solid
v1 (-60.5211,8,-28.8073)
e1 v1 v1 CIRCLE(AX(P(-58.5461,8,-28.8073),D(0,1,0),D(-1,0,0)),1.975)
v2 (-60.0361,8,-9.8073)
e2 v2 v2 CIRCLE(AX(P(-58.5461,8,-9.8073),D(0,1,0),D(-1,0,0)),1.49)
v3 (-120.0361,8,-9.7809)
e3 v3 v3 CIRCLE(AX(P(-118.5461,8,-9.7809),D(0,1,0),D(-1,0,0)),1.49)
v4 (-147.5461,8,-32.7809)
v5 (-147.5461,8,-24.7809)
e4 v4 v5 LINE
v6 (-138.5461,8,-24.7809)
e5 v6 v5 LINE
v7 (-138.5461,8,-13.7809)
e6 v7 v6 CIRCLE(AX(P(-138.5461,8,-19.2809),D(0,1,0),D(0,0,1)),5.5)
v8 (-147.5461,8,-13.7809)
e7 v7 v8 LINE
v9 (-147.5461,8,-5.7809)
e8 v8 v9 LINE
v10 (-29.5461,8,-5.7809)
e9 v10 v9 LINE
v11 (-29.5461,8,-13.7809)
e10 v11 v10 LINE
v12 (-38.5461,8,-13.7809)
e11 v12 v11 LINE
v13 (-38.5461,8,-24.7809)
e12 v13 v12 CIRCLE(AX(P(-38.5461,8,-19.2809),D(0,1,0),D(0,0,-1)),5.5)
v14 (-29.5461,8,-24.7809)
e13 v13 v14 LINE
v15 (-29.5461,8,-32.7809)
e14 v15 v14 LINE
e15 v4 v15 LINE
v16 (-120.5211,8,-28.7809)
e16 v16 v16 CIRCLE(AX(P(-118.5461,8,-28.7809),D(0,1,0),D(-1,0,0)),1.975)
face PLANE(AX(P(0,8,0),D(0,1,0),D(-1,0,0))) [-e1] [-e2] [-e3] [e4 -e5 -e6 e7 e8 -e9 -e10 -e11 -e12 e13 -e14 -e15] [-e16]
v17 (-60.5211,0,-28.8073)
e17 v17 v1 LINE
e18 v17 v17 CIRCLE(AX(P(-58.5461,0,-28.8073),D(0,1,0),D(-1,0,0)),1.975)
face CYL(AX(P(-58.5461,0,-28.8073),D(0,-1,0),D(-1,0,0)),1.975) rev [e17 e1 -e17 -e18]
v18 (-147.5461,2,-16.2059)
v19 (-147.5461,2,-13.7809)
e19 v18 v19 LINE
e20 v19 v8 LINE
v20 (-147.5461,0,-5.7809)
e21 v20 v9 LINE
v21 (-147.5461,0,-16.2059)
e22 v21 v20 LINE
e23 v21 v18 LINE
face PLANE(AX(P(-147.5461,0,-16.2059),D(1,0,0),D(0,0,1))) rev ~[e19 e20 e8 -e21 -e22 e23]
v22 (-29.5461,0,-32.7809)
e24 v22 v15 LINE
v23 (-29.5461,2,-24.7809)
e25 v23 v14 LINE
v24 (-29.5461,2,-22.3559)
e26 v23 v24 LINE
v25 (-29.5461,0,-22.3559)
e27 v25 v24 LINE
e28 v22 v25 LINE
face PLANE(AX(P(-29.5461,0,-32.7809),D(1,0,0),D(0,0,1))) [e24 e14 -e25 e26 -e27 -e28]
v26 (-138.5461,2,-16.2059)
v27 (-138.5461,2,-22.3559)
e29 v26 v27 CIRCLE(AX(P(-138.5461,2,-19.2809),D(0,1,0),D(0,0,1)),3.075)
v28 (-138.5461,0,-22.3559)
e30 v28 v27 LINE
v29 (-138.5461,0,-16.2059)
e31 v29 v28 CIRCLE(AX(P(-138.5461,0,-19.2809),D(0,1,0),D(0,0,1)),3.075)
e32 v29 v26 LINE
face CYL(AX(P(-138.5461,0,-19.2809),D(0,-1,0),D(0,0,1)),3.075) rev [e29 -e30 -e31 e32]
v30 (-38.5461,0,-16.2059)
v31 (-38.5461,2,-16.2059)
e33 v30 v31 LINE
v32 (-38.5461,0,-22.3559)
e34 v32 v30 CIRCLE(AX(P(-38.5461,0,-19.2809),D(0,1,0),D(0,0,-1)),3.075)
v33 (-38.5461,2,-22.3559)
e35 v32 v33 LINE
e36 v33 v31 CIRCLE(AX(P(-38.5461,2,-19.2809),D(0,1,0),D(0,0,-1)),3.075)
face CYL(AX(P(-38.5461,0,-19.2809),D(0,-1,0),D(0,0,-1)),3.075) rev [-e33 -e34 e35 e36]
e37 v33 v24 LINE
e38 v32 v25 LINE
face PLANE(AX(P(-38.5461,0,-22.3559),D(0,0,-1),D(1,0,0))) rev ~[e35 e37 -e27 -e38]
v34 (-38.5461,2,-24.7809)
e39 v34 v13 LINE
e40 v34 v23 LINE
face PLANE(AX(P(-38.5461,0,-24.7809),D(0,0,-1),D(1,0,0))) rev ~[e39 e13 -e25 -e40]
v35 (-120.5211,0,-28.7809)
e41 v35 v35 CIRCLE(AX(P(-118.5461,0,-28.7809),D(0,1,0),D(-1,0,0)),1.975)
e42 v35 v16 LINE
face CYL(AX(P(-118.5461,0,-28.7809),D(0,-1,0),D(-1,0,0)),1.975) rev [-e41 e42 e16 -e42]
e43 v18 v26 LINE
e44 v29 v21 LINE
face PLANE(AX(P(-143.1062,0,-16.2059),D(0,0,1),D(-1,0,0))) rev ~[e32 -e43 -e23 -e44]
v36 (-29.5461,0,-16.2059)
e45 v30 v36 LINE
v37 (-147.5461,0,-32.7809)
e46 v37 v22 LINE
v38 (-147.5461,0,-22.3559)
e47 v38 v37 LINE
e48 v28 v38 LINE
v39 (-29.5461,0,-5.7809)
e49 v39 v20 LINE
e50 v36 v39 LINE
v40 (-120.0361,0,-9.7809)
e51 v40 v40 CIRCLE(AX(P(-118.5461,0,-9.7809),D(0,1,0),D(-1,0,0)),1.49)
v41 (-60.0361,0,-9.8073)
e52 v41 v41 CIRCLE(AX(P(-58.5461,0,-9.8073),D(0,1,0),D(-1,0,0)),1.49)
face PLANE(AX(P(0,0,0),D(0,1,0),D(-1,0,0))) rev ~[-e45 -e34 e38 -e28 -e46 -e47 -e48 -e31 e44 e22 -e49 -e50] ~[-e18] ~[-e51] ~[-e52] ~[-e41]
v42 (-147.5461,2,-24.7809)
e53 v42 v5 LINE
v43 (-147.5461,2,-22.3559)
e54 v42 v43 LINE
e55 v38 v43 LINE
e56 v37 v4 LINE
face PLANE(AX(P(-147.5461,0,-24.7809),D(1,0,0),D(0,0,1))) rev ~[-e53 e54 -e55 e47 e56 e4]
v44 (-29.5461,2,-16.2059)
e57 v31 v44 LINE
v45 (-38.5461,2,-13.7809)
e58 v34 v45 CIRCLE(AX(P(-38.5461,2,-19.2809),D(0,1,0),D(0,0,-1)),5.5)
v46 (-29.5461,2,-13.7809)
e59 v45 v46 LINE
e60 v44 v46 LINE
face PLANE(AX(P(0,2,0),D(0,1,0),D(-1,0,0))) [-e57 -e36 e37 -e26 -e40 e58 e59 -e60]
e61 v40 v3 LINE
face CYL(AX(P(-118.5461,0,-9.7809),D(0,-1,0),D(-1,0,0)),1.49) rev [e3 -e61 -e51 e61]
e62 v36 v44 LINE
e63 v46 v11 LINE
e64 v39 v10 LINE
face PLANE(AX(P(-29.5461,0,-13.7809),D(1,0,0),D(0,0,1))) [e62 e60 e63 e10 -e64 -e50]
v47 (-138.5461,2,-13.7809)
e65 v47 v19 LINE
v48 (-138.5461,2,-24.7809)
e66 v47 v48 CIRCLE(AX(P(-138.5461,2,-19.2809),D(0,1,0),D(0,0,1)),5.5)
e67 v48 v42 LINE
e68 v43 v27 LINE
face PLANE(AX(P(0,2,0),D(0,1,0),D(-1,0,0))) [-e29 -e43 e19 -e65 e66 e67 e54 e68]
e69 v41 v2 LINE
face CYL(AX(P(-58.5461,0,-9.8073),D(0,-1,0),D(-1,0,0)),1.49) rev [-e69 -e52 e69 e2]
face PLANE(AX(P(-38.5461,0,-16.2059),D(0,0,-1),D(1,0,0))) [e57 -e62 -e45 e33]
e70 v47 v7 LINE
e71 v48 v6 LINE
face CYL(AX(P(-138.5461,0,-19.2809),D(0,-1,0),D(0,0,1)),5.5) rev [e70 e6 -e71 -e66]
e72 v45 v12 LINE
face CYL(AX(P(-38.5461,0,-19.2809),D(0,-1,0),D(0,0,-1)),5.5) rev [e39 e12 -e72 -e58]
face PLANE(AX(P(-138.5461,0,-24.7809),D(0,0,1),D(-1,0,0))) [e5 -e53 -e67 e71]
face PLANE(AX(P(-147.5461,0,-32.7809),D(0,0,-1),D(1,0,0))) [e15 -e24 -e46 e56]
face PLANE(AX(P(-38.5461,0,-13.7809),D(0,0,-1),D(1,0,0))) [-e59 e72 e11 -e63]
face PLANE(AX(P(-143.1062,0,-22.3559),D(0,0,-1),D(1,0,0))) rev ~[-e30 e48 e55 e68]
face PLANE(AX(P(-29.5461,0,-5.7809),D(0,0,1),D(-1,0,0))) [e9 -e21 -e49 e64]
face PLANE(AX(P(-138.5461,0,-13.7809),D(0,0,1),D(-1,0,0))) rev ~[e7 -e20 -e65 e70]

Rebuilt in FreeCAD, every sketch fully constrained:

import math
import FreeCAD as App
import Part
import Sketcher
from FreeCAD import Vector
Q = App.Units.Quantity

doc = App.newDocument("Part")
body = doc.addObject("PartDesign::Body", "Body")

# Sketch on XZ plane
sketch1 = doc.addObject("Sketcher::SketchObject", "Sketch")
body.addObject(sketch1)
sketch1.AttachmentSupport = (doc.XZ_Plane, [""])
sketch1.MapMode = "FlatFace"
sketch1.addGeometry([
    Part.ArcOfCircle(Part.Circle(Vector(-138.5, -19.3, 0), Vector(0, 0, 1), 5.5), math.radians(-90), math.radians(90)),  # 0
    Part.LineSegment(Vector(-138.5, -13.8, 0), Vector(-147.5, -13.8, 0)),  # 1
    Part.LineSegment(Vector(-147.5, -13.8, 0), Vector(-147.5, -5.8, 0)),  # 2
    Part.LineSegment(Vector(-147.5, -5.8, 0), Vector(-29.5, -5.8, 0)),  # 3
    Part.LineSegment(Vector(-29.5, -5.8, 0), Vector(-29.5, -13.8, 0)),  # 4
    Part.LineSegment(Vector(-29.5, -13.8, 0), Vector(-38.5, -13.8, 0)),  # 5
    Part.ArcOfCircle(Part.Circle(Vector(-38.5, -19.3, 0), Vector(0, 0, 1), 5.5), math.radians(90), math.radians(270)),  # 6
    Part.LineSegment(Vector(-38.5, -24.8, 0), Vector(-29.5, -24.8, 0)),  # 7
    Part.LineSegment(Vector(-29.5, -24.8, 0), Vector(-29.5, -32.8, 0)),  # 8
    Part.LineSegment(Vector(-29.5, -32.8, 0), Vector(-147.5, -32.8, 0)),  # 9
    Part.LineSegment(Vector(-147.5, -32.8, 0), Vector(-147.5, -24.8, 0)),  # 10
    Part.LineSegment(Vector(-147.5, -24.8, 0), Vector(-138.5, -24.8, 0)),  # 11
    Part.Circle(Vector(-58.5, -28.8, 0), Vector(0, 0, 1), 2),  # 12
    Part.Circle(Vector(-118.5, -28.8, 0), Vector(0, 0, 1), 2),  # 13
    Part.Circle(Vector(-58.5, -9.8, 0), Vector(0, 0, 1), 1.5),  # 14
    Part.Circle(Vector(-118.5, -9.8, 0), Vector(0, 0, 1), 1.5),  # 15
], False)
sketch1.addConstraint([
    Sketcher.Constraint("Tangent", 0, 2, 1, 1),
    Sketcher.Constraint("Coincident", 1, 2, 2, 1),
    Sketcher.Constraint("Coincident", 2, 2, 3, 1),
    Sketcher.Constraint("Coincident", 3, 2, 4, 1),
    Sketcher.Constraint("Coincident", 4, 2, 5, 1),
    Sketcher.Constraint("Tangent", 5, 2, 6, 1),
    Sketcher.Constraint("Tangent", 6, 2, 7, 1),
    Sketcher.Constraint("Coincident", 7, 2, 8, 1),
    Sketcher.Constraint("Coincident", 8, 2, 9, 1),
    Sketcher.Constraint("Coincident", 9, 2, 10, 1),
    Sketcher.Constraint("Coincident", 10, 2, 11, 1),
    Sketcher.Constraint("Tangent", 11, 2, 0, 1),
    Sketcher.Constraint("Horizontal", 1),
    Sketcher.Constraint("Vertical", 2),
    Sketcher.Constraint("Horizontal", 3),
    Sketcher.Constraint("Vertical", 4),
    Sketcher.Constraint("Horizontal", 5),
    Sketcher.Constraint("Horizontal", 7),
    Sketcher.Constraint("Vertical", 8),
    Sketcher.Constraint("Horizontal", 9),
    Sketcher.Constraint("Vertical", 10),
    Sketcher.Constraint("Horizontal", 11),
    Sketcher.Constraint("Equal", 0, 6),
    Sketcher.Constraint("Equal", 12, 13),
    Sketcher.Constraint("Equal", 14, 15),
    Sketcher.Constraint("Horizontal", 0, 3, 6, 3),
    Sketcher.Constraint("Vertical", 12, 3, 14, 3),
    Sketcher.Constraint("Vertical", 13, 3, 15, 3),
    Sketcher.Constraint("Vertical", 4, 2, 7, 2),
    Sketcher.Constraint("Vertical", 2, 2, 9, 2),
    Sketcher.Constraint("Equal", 1, 5),
    Sketcher.Constraint("Equal", 4, 8),
    Sketcher.Constraint("Radius", 0, Q("5.5 mm")),
    Sketcher.Constraint("Diameter", 12, Q("3.95 mm")),
    Sketcher.Constraint("Diameter", 14, Q("2.98 mm")),
    Sketcher.Constraint("DistanceX", 1, 2, 1, 1, Q("9 mm")),
    Sketcher.Constraint("DistanceX", 0, 3, 6, 3, Q("100 mm")),
    Sketcher.Constraint("DistanceX", 13, 3, 12, 3, Q("60 mm")),
    Sketcher.Constraint("DistanceY", 12, 3, 14, 3, Q("19 mm")),
    Sketcher.Constraint("DistanceY", 13, 3, 15, 3, Q("19 mm")),
    Sketcher.Constraint("DistanceY", 0, 2, 15, 3, Q("4 mm")),
    Sketcher.Constraint("DistanceY", 15, 3, 2, 2, Q("4 mm")),
    Sketcher.Constraint("DistanceX", 12, 3, 6, 3, Q("20 mm")),
    Sketcher.Constraint("DistanceX", 0, 3, -1, 1, Q("138.546 mm")),
    Sketcher.Constraint("DistanceY", 0, 3, -1, 1, Q("19.281 mm")),
    Sketcher.Constraint("DistanceY", 12, 3, -1, 1, Q("28.8073 mm")),
])
pad1 = doc.addObject("PartDesign::Pad", "Pad")
body.addObject(pad1)
pad1.Profile = sketch1
pad1.Length = 8
pad1.Reversed = True

# Sketch on XZ plane
sketch2 = doc.addObject("Sketcher::SketchObject", "Sketch001")
body.addObject(sketch2)
sketch2.AttachmentSupport = (doc.XZ_Plane, [""])
sketch2.MapMode = "FlatFace"
sketch2.addGeometry([
    Part.LineSegment(Vector(-38.5, -13.8, 0), Vector(-29.5, -13.8, 0)),  # 0
    Part.LineSegment(Vector(-29.5, -13.8, 0), Vector(-29.5, -16.2, 0)),  # 1
    Part.LineSegment(Vector(-29.5, -16.2, 0), Vector(-38.5, -16.2, 0)),  # 2
    Part.ArcOfCircle(Part.Circle(Vector(-38.5, -19.3, 0), Vector(0, 0, 1), 3.1), math.radians(90), math.radians(270)),  # 3
    Part.LineSegment(Vector(-38.5, -22.4, 0), Vector(-29.5, -22.4, 0)),  # 4
    Part.LineSegment(Vector(-29.5, -22.4, 0), Vector(-29.5, -24.8, 0)),  # 5
    Part.LineSegment(Vector(-29.5, -24.8, 0), Vector(-38.5, -24.8, 0)),  # 6
    Part.ArcOfCircle(Part.Circle(Vector(-38.5, -19.3, 0), Vector(0, 0, 1), 5.5), math.radians(90), math.radians(270)),  # 7
], False)
sketch2.addConstraint([
    Sketcher.Constraint("Coincident", 0, 2, 1, 1),
    Sketcher.Constraint("Coincident", 1, 2, 2, 1),
    Sketcher.Constraint("Tangent", 2, 2, 3, 1),
    Sketcher.Constraint("Tangent", 3, 2, 4, 1),
    Sketcher.Constraint("Coincident", 4, 2, 5, 1),
    Sketcher.Constraint("Coincident", 5, 2, 6, 1),
    Sketcher.Constraint("Tangent", 6, 2, 7, 2),
    Sketcher.Constraint("Tangent", 7, 1, 0, 1),
    Sketcher.Constraint("Horizontal", 0),
    Sketcher.Constraint("Vertical", 1),
    Sketcher.Constraint("Horizontal", 2),
    Sketcher.Constraint("Horizontal", 4),
    Sketcher.Constraint("Vertical", 5),
    Sketcher.Constraint("Horizontal", 6),
    Sketcher.Constraint("Coincident", 7, 3, 3, 3),
    Sketcher.Constraint("Vertical", 1, 2, 4, 2),
    Sketcher.Constraint("Radius", 7, Q("5.5 mm")),
    Sketcher.Constraint("DistanceX", 0, 1, 0, 2, Q("9 mm")),
    Sketcher.Constraint("Radius", 3, Q("3.075 mm")),
    Sketcher.Constraint("DistanceX", 3, 3, -1, 1, Q("38.546 mm")),
    Sketcher.Constraint("DistanceY", 3, 3, -1, 1, Q("19.281 mm")),
])
pad2 = doc.addObject("PartDesign::Pad", "Pad001")
body.addObject(pad2)
pad2.Profile = sketch2
pad2.Length = 2
pad2.Reversed = True

# Sketch on XZ plane
sketch3 = doc.addObject("Sketcher::SketchObject", "Sketch002")
body.addObject(sketch3)
sketch3.AttachmentSupport = (doc.XZ_Plane, [""])
sketch3.MapMode = "FlatFace"
sketch3.addGeometry([
    Part.LineSegment(Vector(-147.5, -13.8, 0), Vector(-138.5, -13.8, 0)),  # 0
    Part.ArcOfCircle(Part.Circle(Vector(-138.5, -19.3, 0), Vector(0, 0, 1), 5.5), math.radians(-90), math.radians(90)),  # 1
    Part.LineSegment(Vector(-138.5, -24.8, 0), Vector(-147.5, -24.8, 0)),  # 2
    Part.LineSegment(Vector(-147.5, -24.8, 0), Vector(-147.5, -22.4, 0)),  # 3
    Part.LineSegment(Vector(-147.5, -22.4, 0), Vector(-138.5, -22.4, 0)),  # 4
    Part.ArcOfCircle(Part.Circle(Vector(-138.5, -19.3, 0), Vector(0, 0, 1), 3.1), math.radians(-90), math.radians(90)),  # 5
    Part.LineSegment(Vector(-138.5, -16.2, 0), Vector(-147.5, -16.2, 0)),  # 6
    Part.LineSegment(Vector(-147.5, -16.2, 0), Vector(-147.5, -13.8, 0)),  # 7
], False)
sketch3.addConstraint([
    Sketcher.Constraint("Tangent", 0, 2, 1, 2),
    Sketcher.Constraint("Tangent", 1, 1, 2, 1),
    Sketcher.Constraint("Coincident", 2, 2, 3, 1),
    Sketcher.Constraint("Coincident", 3, 2, 4, 1),
    Sketcher.Constraint("Tangent", 4, 2, 5, 1),
    Sketcher.Constraint("Tangent", 5, 2, 6, 1),
    Sketcher.Constraint("Coincident", 6, 2, 7, 1),
    Sketcher.Constraint("Coincident", 7, 2, 0, 1),
    Sketcher.Constraint("Horizontal", 0),
    Sketcher.Constraint("Horizontal", 2),
    Sketcher.Constraint("Vertical", 3),
    Sketcher.Constraint("Horizontal", 4),
    Sketcher.Constraint("Horizontal", 6),
    Sketcher.Constraint("Vertical", 7),
    Sketcher.Constraint("Coincident", 5, 3, 1, 3),
    Sketcher.Constraint("Vertical", 3, 2, 6, 2),
    Sketcher.Constraint("Radius", 1, Q("5.5 mm")),
    Sketcher.Constraint("DistanceX", 0, 1, 0, 2, Q("9 mm")),
    Sketcher.Constraint("Radius", 5, Q("3.075 mm")),
    Sketcher.Constraint("DistanceX", 1, 3, -1, 1, Q("138.546 mm")),
    Sketcher.Constraint("DistanceY", 1, 3, -1, 1, Q("19.281 mm")),
])
pad3 = doc.addObject("PartDesign::Pad", "Pad002")
body.addObject(pad3)
pad3.Profile = sketch3
pad3.Length = 2
pad3.Reversed = True

doc.recompute()
